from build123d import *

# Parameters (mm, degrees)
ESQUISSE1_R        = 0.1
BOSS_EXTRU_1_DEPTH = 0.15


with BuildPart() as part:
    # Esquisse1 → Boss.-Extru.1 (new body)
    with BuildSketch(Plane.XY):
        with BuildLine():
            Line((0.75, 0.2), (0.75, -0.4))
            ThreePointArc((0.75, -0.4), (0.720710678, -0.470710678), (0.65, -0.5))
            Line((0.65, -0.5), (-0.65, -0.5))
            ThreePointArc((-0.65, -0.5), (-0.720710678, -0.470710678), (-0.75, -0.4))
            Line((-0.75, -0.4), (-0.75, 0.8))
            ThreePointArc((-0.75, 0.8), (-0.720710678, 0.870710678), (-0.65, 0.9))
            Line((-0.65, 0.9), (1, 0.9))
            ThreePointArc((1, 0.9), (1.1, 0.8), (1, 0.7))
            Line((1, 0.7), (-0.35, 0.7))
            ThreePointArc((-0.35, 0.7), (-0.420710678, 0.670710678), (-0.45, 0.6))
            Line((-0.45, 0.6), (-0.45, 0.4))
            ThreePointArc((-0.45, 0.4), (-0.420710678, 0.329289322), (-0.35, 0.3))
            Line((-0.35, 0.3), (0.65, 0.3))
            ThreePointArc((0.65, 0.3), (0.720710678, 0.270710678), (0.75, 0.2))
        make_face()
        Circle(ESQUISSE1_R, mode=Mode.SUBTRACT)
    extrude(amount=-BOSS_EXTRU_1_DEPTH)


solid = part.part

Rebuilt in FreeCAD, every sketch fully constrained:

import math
import FreeCAD as App
import Part
import Sketcher
from FreeCAD import Vector

doc = App.newDocument("Part")
body = doc.addObject("PartDesign::Body", "Body")

sketch1 = body.newObject("Sketcher::SketchObject", "Sketch")
sketch1.AttachmentSupport = (doc.getObject("XY_Plane"), [""])
sketch1.MapMode = "FlatFace"
sketch1.addGeometry(Part.LineSegment(Vector(0.75, -0.4, 0), Vector(0.75, 0.2, 0)), False)
sketch1.addGeometry(Part.ArcOfCircle(Part.Circle(Vector(0.65, 0.2, 0), Vector(0, 0, 1), 0.1), math.radians(0), math.radians(90)), False)
sketch1.addGeometry(Part.LineSegment(Vector(0.65, 0.3, 0), Vector(-0.35, 0.3, 0)), False)
sketch1.addGeometry(Part.ArcOfCircle(Part.Circle(Vector(-0.35, 0.4, 0), Vector(0, 0, 1), 0.1), math.radians(180), math.radians(270)), False)
sketch1.addGeometry(Part.LineSegment(Vector(-0.45, 0.4, 0), Vector(-0.45, 0.6, 0)), False)
sketch1.addGeometry(Part.ArcOfCircle(Part.Circle(Vector(-0.35, 0.6, 0), Vector(0, 0, 1), 0.1), math.radians(90), math.radians(180)), False)
sketch1.addGeometry(Part.LineSegment(Vector(-0.35, 0.7, 0), Vector(1, 0.7, 0)), False)
sketch1.addGeometry(Part.ArcOfCircle(Part.Circle(Vector(1, 0.8, 0), Vector(0, 0, 1), 0.1), math.radians(-90), math.radians(90)), False)
sketch1.addGeometry(Part.LineSegment(Vector(1, 0.9, 0), Vector(-0.65, 0.9, 0)), False)
sketch1.addGeometry(Part.ArcOfCircle(Part.Circle(Vector(-0.65, 0.8, 0), Vector(0, 0, 1), 0.1), math.radians(90), math.radians(180)), False)
sketch1.addGeometry(Part.LineSegment(Vector(-0.75, 0.8, 0), Vector(-0.75, -0.4, 0)), False)
sketch1.addGeometry(Part.ArcOfCircle(Part.Circle(Vector(-0.65, -0.4, 0), Vector(0, 0, 1), 0.1), math.radians(180), math.radians(270)), False)
sketch1.addGeometry(Part.LineSegment(Vector(-0.65, -0.5, 0), Vector(0.65, -0.5, 0)), False)
sketch1.addGeometry(Part.ArcOfCircle(Part.Circle(Vector(0.65, -0.4, 0), Vector(0, 0, 1), 0.1), math.radians(-90), math.radians(0)), False)
sketch1.addGeometry(Part.Circle(Vector(0, 0, 0), Vector(0, 0, 1), 0.1), False)
sketch1.addConstraint(Sketcher.Constraint("Tangent", 0, 2, 1, 1))
sketch1.addConstraint(Sketcher.Constraint("Tangent", 1, 2, 2, 1))
sketch1.addConstraint(Sketcher.Constraint("Tangent", 2, 2, 3, 2))
sketch1.addConstraint(Sketcher.Constraint("Tangent", 3, 1, 4, 1))
sketch1.addConstraint(Sketcher.Constraint("Tangent", 4, 2, 5, 2))
sketch1.addConstraint(Sketcher.Constraint("Tangent", 5, 1, 6, 1))
sketch1.addConstraint(Sketcher.Constraint("Tangent", 6, 2, 7, 1))
sketch1.addConstraint(Sketcher.Constraint("Tangent", 7, 2, 8, 1))
sketch1.addConstraint(Sketcher.Constraint("Tangent", 8, 2, 9, 1))
sketch1.addConstraint(Sketcher.Constraint("Tangent", 9, 2, 10, 1))
sketch1.addConstraint(Sketcher.Constraint("Tangent", 10, 2, 11, 1))
sketch1.addConstraint(Sketcher.Constraint("Tangent", 11, 2, 12, 1))
sketch1.addConstraint(Sketcher.Constraint("Tangent", 12, 2, 13, 1))
sketch1.addConstraint(Sketcher.Constraint("Tangent", 13, 2, 0, 1))
sketch1.addConstraint(Sketcher.Constraint("Vertical", 0))
sketch1.addConstraint(Sketcher.Constraint("Horizontal", 2))
sketch1.addConstraint(Sketcher.Constraint("Vertical", 4))
sketch1.addConstraint(Sketcher.Constraint("Horizontal", 6))
sketch1.addConstraint(Sketcher.Constraint("Horizontal", 8))
sketch1.addConstraint(Sketcher.Constraint("Vertical", 10))
sketch1.addConstraint(Sketcher.Constraint("Horizontal", 12))
sketch1.addConstraint(Sketcher.Constraint("Coincident", 14, 3, -1, 1))
sketch1.addConstraint(Sketcher.Constraint("Equal", 1, 3))
sketch1.addConstraint(Sketcher.Constraint("Equal", 3, 5))
sketch1.addConstraint(Sketcher.Constraint("Equal", 5, 7))
sketch1.addConstraint(Sketcher.Constraint("Equal", 7, 9))
sketch1.addConstraint(Sketcher.Constraint("Equal", 9, 11))
sketch1.addConstraint(Sketcher.Constraint("Equal", 11, 13))
sketch1.addConstraint(Sketcher.Constraint("Equal", 13, 14))
sketch1.addConstraint(Sketcher.Constraint("Diameter", 14, 0.2))
sketch1.addConstraint(Sketcher.Constraint("DistanceX", 2, 2, 2, 1, 1.0))
sketch1.addConstraint(Sketcher.Constraint("DistanceX", 12, 1, 12, 2, 1.3))
sketch1.addConstraint(Sketcher.Constraint("DistanceY", 0, 1, 0, 2, 0.6))
sketch1.addConstraint(Sketcher.Constraint("DistanceY", 4, 1, 4, 2, 0.2))
sketch1.addConstraint(Sketcher.Constraint("DistanceX", -1, 1, 7, 3, 1.0))
sketch1.addConstraint(Sketcher.Constraint("DistanceX", 6, 1, 6, 2, 1.35))
sketch1.addConstraint(Sketcher.Constraint("DistanceY", -1, 1, 1, 3, 0.2))
pad1 = body.newObject("PartDesign::Pad", "Pad")
pad1.Profile = sketch1
pad1.Length = 0.15
pad1.Reversed = True

doc.recompute()
